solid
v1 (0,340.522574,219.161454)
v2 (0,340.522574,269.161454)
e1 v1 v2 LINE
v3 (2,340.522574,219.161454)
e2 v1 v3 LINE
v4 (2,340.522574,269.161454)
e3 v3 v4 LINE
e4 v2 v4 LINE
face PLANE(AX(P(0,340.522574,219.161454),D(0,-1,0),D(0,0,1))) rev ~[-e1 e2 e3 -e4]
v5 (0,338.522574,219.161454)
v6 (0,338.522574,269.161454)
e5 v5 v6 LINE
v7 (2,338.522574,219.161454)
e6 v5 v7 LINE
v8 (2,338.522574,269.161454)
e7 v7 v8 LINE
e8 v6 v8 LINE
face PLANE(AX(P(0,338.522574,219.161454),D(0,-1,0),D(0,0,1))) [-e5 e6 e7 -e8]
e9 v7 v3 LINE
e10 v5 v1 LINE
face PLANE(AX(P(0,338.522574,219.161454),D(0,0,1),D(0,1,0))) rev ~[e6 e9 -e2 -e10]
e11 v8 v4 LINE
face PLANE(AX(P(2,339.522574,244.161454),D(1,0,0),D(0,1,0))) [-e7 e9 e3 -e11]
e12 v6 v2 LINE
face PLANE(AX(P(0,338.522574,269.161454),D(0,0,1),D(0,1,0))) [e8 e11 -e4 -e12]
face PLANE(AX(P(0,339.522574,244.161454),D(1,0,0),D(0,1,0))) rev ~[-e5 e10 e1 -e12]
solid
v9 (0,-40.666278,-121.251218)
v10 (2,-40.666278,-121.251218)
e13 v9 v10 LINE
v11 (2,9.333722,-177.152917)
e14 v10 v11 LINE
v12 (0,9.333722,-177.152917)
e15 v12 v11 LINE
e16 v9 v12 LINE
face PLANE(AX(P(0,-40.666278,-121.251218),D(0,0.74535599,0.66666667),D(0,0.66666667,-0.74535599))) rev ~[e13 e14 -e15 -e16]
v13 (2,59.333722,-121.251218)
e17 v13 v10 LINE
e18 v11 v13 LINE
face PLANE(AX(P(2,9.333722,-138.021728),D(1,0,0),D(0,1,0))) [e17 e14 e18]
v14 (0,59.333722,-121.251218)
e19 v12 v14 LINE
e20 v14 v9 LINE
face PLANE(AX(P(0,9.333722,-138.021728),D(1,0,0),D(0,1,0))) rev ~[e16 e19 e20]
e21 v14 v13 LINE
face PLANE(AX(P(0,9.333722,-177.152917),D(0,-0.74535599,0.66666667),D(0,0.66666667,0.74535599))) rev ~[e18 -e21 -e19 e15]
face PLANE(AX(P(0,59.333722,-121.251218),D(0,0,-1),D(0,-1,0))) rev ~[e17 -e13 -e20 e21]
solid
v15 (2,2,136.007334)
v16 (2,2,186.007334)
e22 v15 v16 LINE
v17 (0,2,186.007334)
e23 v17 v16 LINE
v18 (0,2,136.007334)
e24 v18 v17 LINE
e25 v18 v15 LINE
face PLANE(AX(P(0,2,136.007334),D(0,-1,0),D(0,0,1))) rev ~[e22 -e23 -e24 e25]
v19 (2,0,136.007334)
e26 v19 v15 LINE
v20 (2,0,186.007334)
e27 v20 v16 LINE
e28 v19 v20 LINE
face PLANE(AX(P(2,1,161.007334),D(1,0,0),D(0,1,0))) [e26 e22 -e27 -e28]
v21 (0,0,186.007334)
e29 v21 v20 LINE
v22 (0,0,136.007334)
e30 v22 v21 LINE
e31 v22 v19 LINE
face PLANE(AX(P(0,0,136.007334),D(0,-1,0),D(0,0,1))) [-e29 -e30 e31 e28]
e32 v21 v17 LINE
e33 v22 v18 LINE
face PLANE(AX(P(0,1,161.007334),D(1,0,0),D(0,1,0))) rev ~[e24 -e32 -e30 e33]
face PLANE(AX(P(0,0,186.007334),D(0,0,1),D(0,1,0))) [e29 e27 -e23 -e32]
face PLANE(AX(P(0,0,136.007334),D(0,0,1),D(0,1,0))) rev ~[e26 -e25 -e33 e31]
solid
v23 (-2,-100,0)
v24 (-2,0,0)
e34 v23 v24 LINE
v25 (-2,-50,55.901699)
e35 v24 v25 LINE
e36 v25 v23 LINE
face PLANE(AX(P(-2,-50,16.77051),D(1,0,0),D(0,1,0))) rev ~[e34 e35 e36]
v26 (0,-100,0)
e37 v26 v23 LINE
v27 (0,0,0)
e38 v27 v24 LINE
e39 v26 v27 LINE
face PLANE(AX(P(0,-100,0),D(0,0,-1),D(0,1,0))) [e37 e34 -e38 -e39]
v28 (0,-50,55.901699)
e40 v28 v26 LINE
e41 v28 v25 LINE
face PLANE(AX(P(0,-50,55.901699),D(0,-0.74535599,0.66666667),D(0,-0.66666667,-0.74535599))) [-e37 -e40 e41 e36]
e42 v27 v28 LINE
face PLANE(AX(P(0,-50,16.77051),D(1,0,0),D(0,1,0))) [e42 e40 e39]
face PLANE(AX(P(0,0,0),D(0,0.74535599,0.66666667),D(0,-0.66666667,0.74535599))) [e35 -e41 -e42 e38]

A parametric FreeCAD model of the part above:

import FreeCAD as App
import Part
import Sketcher
from FreeCAD import Vector
Q = App.Units.Quantity

doc = App.newDocument("Part")
body = doc.addObject("PartDesign::Body", "Body")

sketch1 = body.newObject("Sketcher::SketchObject", "Sketch")
sketch1.AttachmentSupport = (doc.getObject("YZ_Plane"), [""])
sketch1.MapMode = "FlatFace"
sketch1.addGeometry([
    Part.LineSegment(Vector(-100, 0, 0), Vector(0, 0, 0)),
    Part.LineSegment(Vector(0, 0, 0), Vector(-50, 56, 0)),
    Part.LineSegment(Vector(-50, 56, 0), Vector(-100, 0, 0)),
], False)
sketch1.addConstraint([
    Sketcher.Constraint("Coincident", 0, 2, 1, 1),
    Sketcher.Constraint("Coincident", 1, 2, 2, 1),
    Sketcher.Constraint("Coincident", 2, 2, 0, 1),
    Sketcher.Constraint("Horizontal", 0),
    Sketcher.Constraint("Coincident", 0, 2, -1, 1),
    Sketcher.Constraint("Equal", 1, 2),
    Sketcher.Constraint("DistanceX", 0, 1, 0, 2, Q("100 mm")),
    Sketcher.Constraint("Distance", 1, Q("75 mm")),
])
pad1 = body.newObject("PartDesign::Pad", "Pad")
pad1.Profile = sketch1
pad1.Length = 2
pad1.Reversed = True
body2 = doc.addObject("PartDesign::Body", "Body001")

sketch2 = body2.newObject("Sketcher::SketchObject", "Sketch001")
sketch2.AttachmentSupport = (doc.getObject("YZ_Plane001"), [""])
sketch2.MapMode = "FlatFace"
sketch2.addGeometry([
    Part.LineSegment(Vector(0, 186, 0), Vector(0, 136, 0)),
    Part.LineSegment(Vector(0, 136, 0), Vector(2, 136, 0)),
    Part.LineSegment(Vector(2, 136, 0), Vector(2, 186, 0)),
    Part.LineSegment(Vector(2, 186, 0), Vector(0, 186, 0)),
], False)
sketch2.addConstraint([
    Sketcher.Constraint("Coincident", 0, 2, 1, 1),
    Sketcher.Constraint("Coincident", 1, 2, 2, 1),
    Sketcher.Constraint("Coincident", 2, 2, 3, 1),
    Sketcher.Constraint("Coincident", 3, 2, 0, 1),
    Sketcher.Constraint("Vertical", 0),
    Sketcher.Constraint("Horizontal", 1),
    Sketcher.Constraint("Vertical", 2),
    Sketcher.Constraint("Horizontal", 3),
    Sketcher.Constraint("PointOnObject", 0, 2, -2),
    Sketcher.Constraint("DistanceX", 1, 1, 1, 2, Q("2 mm")),
    Sketcher.Constraint("DistanceY", 0, 2, 0, 1, Q("50 mm")),
    Sketcher.Constraint("DistanceY", -1, 1, 0, 2, Q("136.007334 mm")),
])
pad2 = body2.newObject("PartDesign::Pad", "Pad001")
pad2.Profile = sketch2
pad2.Length = 2
body3 = doc.addObject("PartDesign::Body", "Body002")

sketch3 = body3.newObject("Sketcher::SketchObject", "Sketch002")
sketch3.AttachmentSupport = (doc.getObject("YZ_Plane002"), [""])
sketch3.MapMode = "FlatFace"
sketch3.addGeometry([
    Part.LineSegment(Vector(59, -121, 0), Vector(-41, -121, 0)),
    Part.LineSegment(Vector(-41, -121, 0), Vector(9, -177, 0)),
    Part.LineSegment(Vector(9, -177, 0), Vector(59, -121, 0)),
], False)
sketch3.addConstraint([
    Sketcher.Constraint("Coincident", 0, 2, 1, 1),
    Sketcher.Constraint("Coincident", 1, 2, 2, 1),
    Sketcher.Constraint("Coincident", 2, 2, 0, 1),
    Sketcher.Constraint("Horizontal", 0),
    Sketcher.Constraint("Equal", 1, 2),
    Sketcher.Constraint("DistanceX", 0, 2, 0, 1, Q("100 mm")),
    Sketcher.Constraint("Distance", 1, Q("75 mm")),
    Sketcher.Constraint("DistanceX", 0, 2, -1, 1, Q("40.666278 mm")),
    Sketcher.Constraint("DistanceY", 0, 2, -1, 1, Q("121.251218 mm")),
])
pad3 = body3.newObject("PartDesign::Pad", "Pad002")
pad3.Profile = sketch3
pad3.Length = 2
body4 = doc.addObject("PartDesign::Body", "Body003")

sketch4 = body4.newObject("Sketcher::SketchObject", "Sketch003")
sketch4.AttachmentSupport = (doc.getObject("YZ_Plane003"), [""])
sketch4.MapMode = "FlatFace"
sketch4.addGeometry([
    Part.LineSegment(Vector(338.5, 269.2, 0), Vector(338.5, 219.2, 0)),
    Part.LineSegment(Vector(338.5, 219.2, 0), Vector(340.5, 219.2, 0)),
    Part.LineSegment(Vector(340.5, 219.2, 0), Vector(340.5, 269.2, 0)),
    Part.LineSegment(Vector(340.5, 269.2, 0), Vector(338.5, 269.2, 0)),
], False)
sketch4.addConstraint([
    Sketcher.Constraint("Coincident", 0, 2, 1, 1),
    Sketcher.Constraint("Coincident", 1, 2, 2, 1),
    Sketcher.Constraint("Coincident", 2, 2, 3, 1),
    Sketcher.Constraint("Coincident", 3, 2, 0, 1),
    Sketcher.Constraint("Vertical", 0),
    Sketcher.Constraint("Horizontal", 1),
    Sketcher.Constraint("Vertical", 2),
    Sketcher.Constraint("Horizontal", 3),
    Sketcher.Constraint("DistanceX", 1, 1, 1, 2, Q("2 mm")),
    Sketcher.Constraint("DistanceY", 0, 2, 0, 1, Q("50 mm")),
    Sketcher.Constraint("DistanceX", -1, 1, 0, 2, Q("338.522574 mm")),
    Sketcher.Constraint("DistanceY", -1, 1, 0, 2, Q("219.161454 mm")),
])
pad4 = body4.newObject("PartDesign::Pad", "Pad003")
pad4.Profile = sketch4
pad4.Length = 2

doc.recompute()
